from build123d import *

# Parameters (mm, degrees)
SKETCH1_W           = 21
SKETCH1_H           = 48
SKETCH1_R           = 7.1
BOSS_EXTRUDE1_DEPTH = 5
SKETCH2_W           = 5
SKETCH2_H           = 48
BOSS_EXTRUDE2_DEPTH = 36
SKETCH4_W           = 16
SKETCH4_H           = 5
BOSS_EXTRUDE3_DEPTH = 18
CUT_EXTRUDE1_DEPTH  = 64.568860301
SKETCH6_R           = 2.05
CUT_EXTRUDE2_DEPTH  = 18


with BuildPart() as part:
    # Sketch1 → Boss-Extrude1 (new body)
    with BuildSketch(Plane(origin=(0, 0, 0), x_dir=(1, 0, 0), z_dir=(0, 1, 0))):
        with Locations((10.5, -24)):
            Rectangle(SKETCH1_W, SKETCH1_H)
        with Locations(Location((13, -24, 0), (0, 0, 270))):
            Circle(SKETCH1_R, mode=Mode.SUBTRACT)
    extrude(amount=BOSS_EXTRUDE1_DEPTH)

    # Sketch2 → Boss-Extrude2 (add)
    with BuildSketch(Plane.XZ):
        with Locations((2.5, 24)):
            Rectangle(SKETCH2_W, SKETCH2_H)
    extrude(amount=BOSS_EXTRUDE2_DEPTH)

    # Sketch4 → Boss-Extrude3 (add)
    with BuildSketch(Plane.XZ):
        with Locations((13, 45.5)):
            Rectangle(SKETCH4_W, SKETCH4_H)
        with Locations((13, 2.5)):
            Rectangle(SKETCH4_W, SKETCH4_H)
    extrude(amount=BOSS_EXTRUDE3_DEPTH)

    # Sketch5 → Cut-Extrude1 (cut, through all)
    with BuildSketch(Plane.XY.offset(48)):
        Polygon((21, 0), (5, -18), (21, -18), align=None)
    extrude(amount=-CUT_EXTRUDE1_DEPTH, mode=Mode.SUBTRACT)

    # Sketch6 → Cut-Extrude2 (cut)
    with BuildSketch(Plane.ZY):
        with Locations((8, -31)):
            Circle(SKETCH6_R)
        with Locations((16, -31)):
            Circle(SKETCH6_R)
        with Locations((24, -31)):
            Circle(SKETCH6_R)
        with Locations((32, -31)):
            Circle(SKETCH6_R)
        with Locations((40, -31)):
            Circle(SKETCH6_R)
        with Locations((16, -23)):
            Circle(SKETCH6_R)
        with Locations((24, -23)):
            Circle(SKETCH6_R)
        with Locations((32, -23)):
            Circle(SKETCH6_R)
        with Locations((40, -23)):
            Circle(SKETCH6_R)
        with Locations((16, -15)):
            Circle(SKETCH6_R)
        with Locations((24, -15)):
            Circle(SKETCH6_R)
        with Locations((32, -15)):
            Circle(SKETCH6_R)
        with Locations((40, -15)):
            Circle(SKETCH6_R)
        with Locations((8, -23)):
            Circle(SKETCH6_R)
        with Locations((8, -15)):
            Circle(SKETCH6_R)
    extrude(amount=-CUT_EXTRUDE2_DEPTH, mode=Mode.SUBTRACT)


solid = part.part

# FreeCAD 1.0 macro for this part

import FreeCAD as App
import Part
import Sketcher
from FreeCAD import Vector
Q = App.Units.Quantity


def add_polygon(sketch, points):
    """Adds a closed chain of lines whose ends are joined by coincident constraints."""
    first, n = sketch.GeometryCount, len(points)
    for a, b in zip(points, points[1:] + points[:1]):
        sketch.addGeometry(Part.LineSegment(App.Vector(*a, 0), App.Vector(*b, 0)), False)
    for i in range(n):
        sketch.addConstraint(Sketcher.Constraint("Coincident", first + i, 2, first + (i + 1) % n, 1))

doc = App.newDocument("Part")
body = doc.addObject("PartDesign::Body", "Body")

# Sketch on XZ plane
sketch1 = body.newObject("Sketcher::SketchObject", "Sketch")
sketch1.AttachmentSupport = (doc.getObject("XZ_Plane"), [""])
sketch1.MapMode = "FlatFace"
add_polygon(sketch1, [(0, 0), (0, 48), (21, 48), (21, 0)])  # lines 0-3
sketch1.addGeometry(Part.Circle(Vector(13, 24, 0), Vector(0, 0, 1), 7), False)  # 4
sketch1.addConstraint([
    Sketcher.Constraint("Vertical", 0),
    Sketcher.Constraint("Horizontal", 1),
    Sketcher.Constraint("Vertical", 2),
    Sketcher.Constraint("Horizontal", 3),
    Sketcher.Constraint("Coincident", 3, 2, -1, 1),
    Sketcher.Constraint("Diameter", 4, Q("14.2 mm")),
    Sketcher.Constraint("DistanceX", 1, 1, 1, 2, Q("21 mm")),
    Sketcher.Constraint("DistanceY", 0, 1, 0, 2, Q("48 mm")),
    Sketcher.Constraint("DistanceX", -1, 1, 4, 3, Q("13 mm")),
    Sketcher.Constraint("DistanceY", -1, 1, 4, 3, Q("24 mm")),
])
pad1 = body.newObject("PartDesign::Pad", "Pad")
pad1.Profile = sketch1
pad1.Length = 5
pad1.Reversed = True

# Sketch on XZ plane
sketch2 = body.newObject("Sketcher::SketchObject", "Sketch001")
sketch2.AttachmentSupport = (doc.getObject("XZ_Plane"), [""])
sketch2.MapMode = "FlatFace"
add_polygon(sketch2, [(0, 48), (0, 0), (5, 0), (5, 48)])  # lines 0-3
sketch2.addConstraint([
    Sketcher.Constraint("Vertical", 0),
    Sketcher.Constraint("Horizontal", 1),
    Sketcher.Constraint("Vertical", 2),
    Sketcher.Constraint("Horizontal", 3),
    Sketcher.Constraint("Coincident", 0, 2, -1, 1),
    Sketcher.Constraint("DistanceX", 1, 1, 1, 2, Q("5 mm")),
    Sketcher.Constraint("DistanceY", 0, 2, 0, 1, Q("48 mm")),
])
pad2 = body.newObject("PartDesign::Pad", "Pad001")
pad2.Profile = sketch2
pad2.Length = 36

# Sketch on XZ plane
sketch3 = body.newObject("Sketcher::SketchObject", "Sketch002")
sketch3.AttachmentSupport = (doc.getObject("XZ_Plane"), [""])
sketch3.MapMode = "FlatFace"
add_polygon(sketch3, [(5, 48), (5, 43), (21, 43), (21, 48)])  # lines 0-3
add_polygon(sketch3, [(5, 5), (5, 0), (21, 0), (21, 5)])  # lines 4-7
sketch3.addConstraint([
    Sketcher.Constraint("Vertical", 0),
    Sketcher.Constraint("Horizontal", 1),
    Sketcher.Constraint("Vertical", 2),
    Sketcher.Constraint("Horizontal", 3),
    Sketcher.Constraint("Vertical", 4),
    Sketcher.Constraint("Horizontal", 5),
    Sketcher.Constraint("Vertical", 6),
    Sketcher.Constraint("Horizontal", 7),
    Sketcher.Constraint("PointOnObject", 4, 2, -1),
    Sketcher.Constraint("Vertical", 3, 2, 4, 2),
    Sketcher.Constraint("Vertical", 2, 2, 5, 2),
    Sketcher.Constraint("Equal", 2, 4),
    Sketcher.Constraint("DistanceX", 1, 1, 1, 2, Q("16 mm")),
    Sketcher.Constraint("DistanceY", 0, 2, 0, 1, Q("5 mm")),
    Sketcher.Constraint("DistanceX", -1, 1, 0, 2, Q("5 mm")),
    Sketcher.Constraint("DistanceY", -1, 1, 0, 2, Q("43 mm")),
])
pad3 = body.newObject("PartDesign::Pad", "Pad002")
pad3.Profile = sketch3
pad3.Length = 18

# Sketch on XY plane
sketch4 = body.newObject("Sketcher::SketchObject", "Sketch003")
sketch4.AttachmentSupport = (doc.getObject("XY_Plane"), [""])
sketch4.MapMode = "FlatFace"
sketch4.AttachmentOffset = App.Placement(Vector(0, 0, 48), App.Rotation())
add_polygon(sketch4, [(21, 0), (5, -18), (21, -18)])  # lines 0-2
sketch4.addConstraint([
    Sketcher.Constraint("Horizontal", 1),
    Sketcher.Constraint("Vertical", 2),
    Sketcher.Constraint("PointOnObject", 2, 2, -1),
    Sketcher.Constraint("DistanceX", 1, 1, 1, 2, Q("16 mm")),
    Sketcher.Constraint("DistanceY", 2, 1, 2, 2, Q("18 mm")),
    Sketcher.Constraint("DistanceX", -1, 1, 0, 2, Q("5 mm")),
])
pocket1 = body.newObject("PartDesign::Pocket", "Pocket")
pocket1.Profile = sketch4
pocket1.Type = "ThroughAll"

# Sketch on YZ plane
sketch5 = body.newObject("Sketcher::SketchObject", "Sketch004")
sketch5.AttachmentSupport = (doc.getObject("YZ_Plane"), [""])
sketch5.MapMode = "FlatFace"
sketch5.addGeometry([
    Part.Circle(Vector(-31, 8, 0), Vector(0, 0, 1), 2),  # 0
    Part.Circle(Vector(-31, 16, 0), Vector(0, 0, 1), 2),  # 1
    Part.Circle(Vector(-31, 24, 0), Vector(0, 0, 1), 2),  # 2
    Part.Circle(Vector(-31, 32, 0), Vector(0, 0, 1), 2),  # 3
    Part.Circle(Vector(-31, 40, 0), Vector(0, 0, 1), 2),  # 4
    Part.Circle(Vector(-23, 16, 0), Vector(0, 0, 1), 2),  # 5
    Part.Circle(Vector(-23, 24, 0), Vector(0, 0, 1), 2),  # 6
    Part.Circle(Vector(-23, 32, 0), Vector(0, 0, 1), 2),  # 7
    Part.Circle(Vector(-23, 40, 0), Vector(0, 0, 1), 2),  # 8
    Part.Circle(Vector(-15, 16, 0), Vector(0, 0, 1), 2),  # 9
    Part.Circle(Vector(-15, 24, 0), Vector(0, 0, 1), 2),  # 10
    Part.Circle(Vector(-15, 32, 0), Vector(0, 0, 1), 2),  # 11
    Part.Circle(Vector(-15, 40, 0), Vector(0, 0, 1), 2),  # 12
    Part.Circle(Vector(-23, 8, 0), Vector(0, 0, 1), 2),  # 13
    Part.Circle(Vector(-15, 8, 0), Vector(0, 0, 1), 2),  # 14
], False)
sketch5.addConstraint([
    Sketcher.Constraint("Equal", 0, 1),
    Sketcher.Constraint("Equal", 1, 2),
    Sketcher.Constraint("Equal", 2, 3),
    Sketcher.Constraint("Equal", 3, 4),
    Sketcher.Constraint("Equal", 4, 5),
    Sketcher.Constraint("Equal", 5, 6),
    Sketcher.Constraint("Equal", 6, 7),
    Sketcher.Constraint("Equal", 7, 8),
    Sketcher.Constraint("Equal", 8, 9),
    Sketcher.Constraint("Equal", 9, 10),
    Sketcher.Constraint("Equal", 10, 11),
    Sketcher.Constraint("Equal", 11, 12),
    Sketcher.Constraint("Equal", 12, 13),
    Sketcher.Constraint("Equal", 13, 14),
    Sketcher.Constraint("Horizontal", 1, 3, 5, 3),
    Sketcher.Constraint("Horizontal", 2, 3, 6, 3),
    Sketcher.Constraint("Horizontal", 3, 3, 7, 3),
    Sketcher.Constraint("Horizontal", 4, 3, 8, 3),
    Sketcher.Constraint("Horizontal", 5, 3, 9, 3),
    Sketcher.Constraint("Horizontal", 6, 3, 10, 3),
    Sketcher.Constraint("Horizontal", 7, 3, 11, 3),
    Sketcher.Constraint("Horizontal", 8, 3, 12, 3),
    Sketcher.Constraint("Horizontal", 0, 3, 13, 3),
    Sketcher.Constraint("Horizontal", 13, 3, 14, 3),
    Sketcher.Constraint("Vertical", 0, 3, 1, 3),
    Sketcher.Constraint("Vertical", 1, 3, 2, 3),
    Sketcher.Constraint("Vertical", 2, 3, 3, 3),
    Sketcher.Constraint("Vertical", 3, 3, 4, 3),
    Sketcher.Constraint("Vertical", 5, 3, 6, 3),
    Sketcher.Constraint("Vertical", 6, 3, 7, 3),
    Sketcher.Constraint("Vertical", 7, 3, 8, 3),
    Sketcher.Constraint("Vertical", 9, 3, 10, 3),
    Sketcher.Constraint("Vertical", 10, 3, 11, 3),
    Sketcher.Constraint("Vertical", 11, 3, 12, 3),
    Sketcher.Constraint("Vertical", 8, 3, 13, 3),
    Sketcher.Constraint("Vertical", 12, 3, 14, 3),
    Sketcher.Constraint("Diameter", 0, Q("4.1 mm")),
    Sketcher.Constraint("DistanceX", 0, 3, -1, 1, Q("31 mm")),
    Sketcher.Constraint("DistanceY", -1, 1, 0, 3, Q("8 mm")),
    Sketcher.Constraint("DistanceY", -1, 1, 1, 3, Q("16 mm")),
    Sketcher.Constraint("DistanceY", -1, 1, 2, 3, Q("24 mm")),
    Sketcher.Constraint("DistanceY", -1, 1, 3, 3, Q("32 mm")),
    Sketcher.Constraint("DistanceY", -1, 1, 4, 3, Q("40 mm")),
    Sketcher.Constraint("DistanceX", 5, 3, -1, 1, Q("23 mm")),
    Sketcher.Constraint("DistanceX", 9, 3, -1, 1, Q("15 mm")),
])
pocket2 = body.newObject("PartDesign::Pocket", "Pocket001")
pocket2.Profile = sketch5
pocket2.Length = 18
pocket2.Reversed = True

doc.recompute()
